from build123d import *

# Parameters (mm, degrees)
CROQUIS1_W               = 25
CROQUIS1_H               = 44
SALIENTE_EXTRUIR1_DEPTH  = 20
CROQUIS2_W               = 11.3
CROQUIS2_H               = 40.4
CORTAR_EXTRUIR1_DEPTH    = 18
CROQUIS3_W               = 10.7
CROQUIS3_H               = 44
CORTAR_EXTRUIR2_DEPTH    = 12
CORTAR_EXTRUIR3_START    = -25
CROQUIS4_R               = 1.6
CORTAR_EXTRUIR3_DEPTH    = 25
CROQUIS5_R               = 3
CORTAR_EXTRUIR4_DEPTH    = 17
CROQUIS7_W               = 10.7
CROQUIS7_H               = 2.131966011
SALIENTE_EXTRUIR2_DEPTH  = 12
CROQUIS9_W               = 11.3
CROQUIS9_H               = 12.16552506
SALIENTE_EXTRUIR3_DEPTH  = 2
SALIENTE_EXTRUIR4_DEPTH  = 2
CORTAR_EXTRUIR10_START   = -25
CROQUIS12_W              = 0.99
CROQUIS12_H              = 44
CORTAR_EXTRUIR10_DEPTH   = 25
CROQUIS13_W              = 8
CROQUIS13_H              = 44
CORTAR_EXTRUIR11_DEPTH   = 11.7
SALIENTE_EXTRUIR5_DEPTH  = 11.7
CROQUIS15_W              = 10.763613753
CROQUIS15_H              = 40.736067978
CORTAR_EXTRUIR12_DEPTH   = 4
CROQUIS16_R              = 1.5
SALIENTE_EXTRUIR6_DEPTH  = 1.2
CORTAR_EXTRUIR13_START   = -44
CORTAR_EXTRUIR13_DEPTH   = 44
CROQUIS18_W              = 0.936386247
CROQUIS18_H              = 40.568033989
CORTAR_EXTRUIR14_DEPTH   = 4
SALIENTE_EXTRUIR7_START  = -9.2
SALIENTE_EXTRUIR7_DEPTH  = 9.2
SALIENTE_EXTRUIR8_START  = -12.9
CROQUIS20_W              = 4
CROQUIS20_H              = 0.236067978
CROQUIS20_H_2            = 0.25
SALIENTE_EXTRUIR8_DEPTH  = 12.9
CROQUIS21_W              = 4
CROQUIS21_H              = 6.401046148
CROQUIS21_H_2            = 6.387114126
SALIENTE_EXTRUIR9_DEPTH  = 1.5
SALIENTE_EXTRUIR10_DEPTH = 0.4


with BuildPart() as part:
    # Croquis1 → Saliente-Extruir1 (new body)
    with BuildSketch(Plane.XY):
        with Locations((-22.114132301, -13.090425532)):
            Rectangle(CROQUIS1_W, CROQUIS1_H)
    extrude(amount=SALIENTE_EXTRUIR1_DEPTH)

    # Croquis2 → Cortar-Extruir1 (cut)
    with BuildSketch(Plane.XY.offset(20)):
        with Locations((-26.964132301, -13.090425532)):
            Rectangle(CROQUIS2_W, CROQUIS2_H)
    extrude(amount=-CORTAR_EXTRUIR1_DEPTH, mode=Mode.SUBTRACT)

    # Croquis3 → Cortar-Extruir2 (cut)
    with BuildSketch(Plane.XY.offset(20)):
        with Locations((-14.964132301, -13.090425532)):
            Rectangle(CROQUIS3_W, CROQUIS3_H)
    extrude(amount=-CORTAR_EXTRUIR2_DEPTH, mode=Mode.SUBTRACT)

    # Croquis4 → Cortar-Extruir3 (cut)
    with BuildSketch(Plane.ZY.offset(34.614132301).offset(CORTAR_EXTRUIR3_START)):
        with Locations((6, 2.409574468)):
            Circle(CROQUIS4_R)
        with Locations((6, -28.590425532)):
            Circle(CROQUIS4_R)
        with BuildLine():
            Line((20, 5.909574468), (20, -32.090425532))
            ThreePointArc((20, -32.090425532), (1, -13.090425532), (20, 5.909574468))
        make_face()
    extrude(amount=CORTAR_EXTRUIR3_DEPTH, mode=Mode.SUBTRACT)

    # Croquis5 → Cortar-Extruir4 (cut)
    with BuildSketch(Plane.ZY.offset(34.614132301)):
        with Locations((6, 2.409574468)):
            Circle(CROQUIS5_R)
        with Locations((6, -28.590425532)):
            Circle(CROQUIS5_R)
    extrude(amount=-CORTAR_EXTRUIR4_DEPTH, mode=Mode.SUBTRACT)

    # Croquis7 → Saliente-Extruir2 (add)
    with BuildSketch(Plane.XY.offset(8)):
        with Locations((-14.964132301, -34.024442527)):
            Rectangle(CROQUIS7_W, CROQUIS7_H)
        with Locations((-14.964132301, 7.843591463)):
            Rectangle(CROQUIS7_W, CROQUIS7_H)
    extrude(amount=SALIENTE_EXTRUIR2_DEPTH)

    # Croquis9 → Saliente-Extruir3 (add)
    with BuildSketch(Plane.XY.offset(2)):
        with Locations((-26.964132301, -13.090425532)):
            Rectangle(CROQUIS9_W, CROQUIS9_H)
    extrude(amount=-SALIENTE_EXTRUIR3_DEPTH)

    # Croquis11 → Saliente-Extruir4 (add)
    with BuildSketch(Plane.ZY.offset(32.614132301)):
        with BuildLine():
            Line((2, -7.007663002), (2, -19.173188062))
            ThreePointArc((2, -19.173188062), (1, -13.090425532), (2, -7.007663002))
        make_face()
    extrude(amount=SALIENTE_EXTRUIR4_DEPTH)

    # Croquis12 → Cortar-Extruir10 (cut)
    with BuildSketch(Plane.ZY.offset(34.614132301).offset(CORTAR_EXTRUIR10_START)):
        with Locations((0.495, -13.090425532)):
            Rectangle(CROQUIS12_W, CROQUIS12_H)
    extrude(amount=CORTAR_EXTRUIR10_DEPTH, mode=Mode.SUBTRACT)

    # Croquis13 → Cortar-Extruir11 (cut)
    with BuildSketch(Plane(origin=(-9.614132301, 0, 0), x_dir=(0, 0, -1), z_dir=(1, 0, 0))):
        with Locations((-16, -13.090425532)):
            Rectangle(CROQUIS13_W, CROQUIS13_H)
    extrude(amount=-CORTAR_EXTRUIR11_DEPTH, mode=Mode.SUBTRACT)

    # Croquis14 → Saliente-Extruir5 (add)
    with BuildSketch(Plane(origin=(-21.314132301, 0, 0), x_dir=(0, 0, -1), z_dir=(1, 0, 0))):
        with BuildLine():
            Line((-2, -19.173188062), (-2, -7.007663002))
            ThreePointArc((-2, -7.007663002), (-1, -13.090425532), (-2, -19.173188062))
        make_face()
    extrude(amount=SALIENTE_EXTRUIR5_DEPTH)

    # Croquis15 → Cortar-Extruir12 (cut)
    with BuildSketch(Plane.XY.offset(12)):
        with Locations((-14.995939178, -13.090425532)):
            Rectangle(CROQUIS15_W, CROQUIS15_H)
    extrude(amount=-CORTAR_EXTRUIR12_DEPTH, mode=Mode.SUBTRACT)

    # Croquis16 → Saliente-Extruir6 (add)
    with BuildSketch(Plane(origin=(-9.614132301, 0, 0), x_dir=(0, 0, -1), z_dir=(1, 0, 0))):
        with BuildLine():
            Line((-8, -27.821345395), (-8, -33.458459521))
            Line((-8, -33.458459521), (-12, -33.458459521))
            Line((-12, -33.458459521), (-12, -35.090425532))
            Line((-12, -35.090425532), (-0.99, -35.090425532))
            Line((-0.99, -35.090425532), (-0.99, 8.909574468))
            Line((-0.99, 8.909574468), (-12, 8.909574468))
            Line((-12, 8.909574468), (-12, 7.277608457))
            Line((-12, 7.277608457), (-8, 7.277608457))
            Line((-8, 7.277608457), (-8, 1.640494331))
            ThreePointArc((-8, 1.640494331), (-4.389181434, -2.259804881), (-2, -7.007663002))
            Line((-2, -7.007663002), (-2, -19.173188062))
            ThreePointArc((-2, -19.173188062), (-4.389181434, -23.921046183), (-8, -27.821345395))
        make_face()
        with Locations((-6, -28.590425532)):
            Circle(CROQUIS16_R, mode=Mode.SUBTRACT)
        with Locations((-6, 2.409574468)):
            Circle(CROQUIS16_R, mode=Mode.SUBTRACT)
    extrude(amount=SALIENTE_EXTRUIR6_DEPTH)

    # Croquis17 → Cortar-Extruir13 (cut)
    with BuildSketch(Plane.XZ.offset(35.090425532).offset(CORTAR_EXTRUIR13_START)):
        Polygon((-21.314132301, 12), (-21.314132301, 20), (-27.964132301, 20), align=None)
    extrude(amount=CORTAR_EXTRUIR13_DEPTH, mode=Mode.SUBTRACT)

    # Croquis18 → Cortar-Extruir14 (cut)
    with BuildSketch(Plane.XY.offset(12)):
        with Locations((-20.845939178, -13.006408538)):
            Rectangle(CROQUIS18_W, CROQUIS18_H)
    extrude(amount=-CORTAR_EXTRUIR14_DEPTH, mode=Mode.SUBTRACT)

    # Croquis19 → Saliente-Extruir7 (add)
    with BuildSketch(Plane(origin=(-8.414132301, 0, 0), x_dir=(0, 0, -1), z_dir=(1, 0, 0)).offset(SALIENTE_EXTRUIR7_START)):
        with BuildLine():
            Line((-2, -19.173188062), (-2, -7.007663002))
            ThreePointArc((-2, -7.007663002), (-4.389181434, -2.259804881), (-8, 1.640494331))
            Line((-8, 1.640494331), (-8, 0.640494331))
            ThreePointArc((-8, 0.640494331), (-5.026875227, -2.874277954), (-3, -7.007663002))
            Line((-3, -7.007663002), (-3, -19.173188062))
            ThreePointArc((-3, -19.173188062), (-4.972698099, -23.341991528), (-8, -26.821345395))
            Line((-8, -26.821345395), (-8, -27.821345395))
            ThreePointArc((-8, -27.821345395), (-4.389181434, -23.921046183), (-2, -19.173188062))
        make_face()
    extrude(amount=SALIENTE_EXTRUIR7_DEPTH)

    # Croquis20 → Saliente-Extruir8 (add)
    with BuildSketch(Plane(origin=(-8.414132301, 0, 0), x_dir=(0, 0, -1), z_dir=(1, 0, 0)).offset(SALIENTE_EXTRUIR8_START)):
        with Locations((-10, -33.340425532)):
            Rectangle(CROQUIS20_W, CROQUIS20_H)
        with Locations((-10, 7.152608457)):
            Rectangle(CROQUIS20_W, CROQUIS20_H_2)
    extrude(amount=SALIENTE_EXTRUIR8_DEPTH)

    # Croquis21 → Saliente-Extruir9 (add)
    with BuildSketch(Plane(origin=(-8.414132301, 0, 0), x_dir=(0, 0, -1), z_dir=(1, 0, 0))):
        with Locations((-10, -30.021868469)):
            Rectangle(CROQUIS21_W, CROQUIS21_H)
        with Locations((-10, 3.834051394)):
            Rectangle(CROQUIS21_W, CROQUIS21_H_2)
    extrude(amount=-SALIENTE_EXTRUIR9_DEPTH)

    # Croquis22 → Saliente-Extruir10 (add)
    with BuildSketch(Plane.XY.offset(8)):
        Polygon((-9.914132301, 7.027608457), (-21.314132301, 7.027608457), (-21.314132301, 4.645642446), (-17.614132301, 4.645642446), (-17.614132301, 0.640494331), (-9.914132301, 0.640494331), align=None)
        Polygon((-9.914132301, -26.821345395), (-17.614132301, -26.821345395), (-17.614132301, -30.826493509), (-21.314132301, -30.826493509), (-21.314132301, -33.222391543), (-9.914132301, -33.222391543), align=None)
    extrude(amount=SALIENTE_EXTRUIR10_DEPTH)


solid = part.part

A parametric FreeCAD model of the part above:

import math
import FreeCAD as App
import Part
import Sketcher

V = App.Vector

doc = App.newDocument("Part")
params = doc.addObject("Spreadsheet::Sheet", "Params")
for row, (alias, value) in enumerate([
    ("sketch1_width", "25 mm"),
    ("sketch1_height", "44 mm"),
    ("pad1_length", "20 mm"),
    ("sketch2_width", "11.3 mm"),
    ("sketch2_height", "40.4 mm"),
    ("pocket1_length", "18 mm"),
    ("sketch3_height", "44 mm"),
    ("sketch3_width", "10.7 mm"),
    ("pocket2_length", "12 mm"),
    ("sketch4_radius", "19 mm"),
    ("sketch4_diameter", "3.2 mm"),
    ("pocket3_length", "25 mm"),
    ("sketch5_diameter", "6 mm"),
    ("pocket4_length", "17 mm"),
    ("sketch6_width", "10.7 mm"),
    ("pad2_length", "12 mm"),
    ("sketch7_width", "11.3 mm"),
    ("pad3_length", "2 mm"),
    ("sketch8_radius", "19 mm"),
    ("pad4_length", "2 mm"),
    ("sketch9_width", "44 mm"),
    ("sketch9_height", "0.99 mm"),
    ("pocket5_length", "25 mm"),
    ("sketch10_width", "44 mm"),
    ("sketch10_height", "8 mm"),
    ("pocket6_length", "11.7 mm"),
    ("sketch11_radius", "19 mm"),
    ("pad5_length", "11.7 mm"),
    ("pocket7_length", "4 mm"),
    ("sketch13_diameter", "3 mm"),
    ("sketch13_radius", "19 mm"),
    ("sketch13_width", "44 mm"),
    ("sketch13_height", "4 mm"),
    ("sketch13_height2", "11.01 mm"),
    ("pad6_length", "1.2 mm"),
    ("sketch14_height", "8 mm"),
    ("sketch14_width", "6.65 mm"),
    ("pocket8_length", "44 mm"),
    ("pocket9_length", "4 mm"),
    ("sketch16_radius", "19 mm"),
    ("sketch16_width", "1 mm"),
    ("pad7_length", "9.2 mm"),
    ("sketch17_height", "4 mm"),
    ("sketch17_width", "0.25 mm"),
    ("pad8_length", "12.9 mm"),
    ("sketch18_height", "4 mm"),
    ("pad9_length", "1.5 mm"),
    ("sketch19_width", "11.4 mm"),
    ("sketch19_width2", "3.7 mm"),
    ("pad10_length", "0.4 mm"),
], start=1):
    params.set(f"A{row}", alias)
    params.set(f"B{row}", "=" + value)
    params.setAlias(f"B{row}", alias)

body = doc.addObject("PartDesign::Body", "Body")

# Sketch on XY plane
sketch1 = body.newObject("Sketcher::SketchObject", "Sketch")
sketch1.AttachmentSupport = (doc.getObject("XY_Plane"), [""])
sketch1.MapMode = "FlatFace"
sketch1.addGeometry([
    Part.LineSegment(V(-35, 9, 0), V(-35, -35, 0)),
    Part.LineSegment(V(-35, -35, 0), V(-10, -35, 0)),
    Part.LineSegment(V(-10, -35, 0), V(-10, 9, 0)),
    Part.LineSegment(V(-10, 9, 0), V(-35, 9, 0)),
], False)
sketch1.addConstraint([
    Sketcher.Constraint("Coincident", 0, 2, 1, 1),
    Sketcher.Constraint("Coincident", 1, 2, 2, 1),
    Sketcher.Constraint("Coincident", 2, 2, 3, 1),
    Sketcher.Constraint("Coincident", 3, 2, 0, 1),
    Sketcher.Constraint("Vertical", 0),
    Sketcher.Constraint("Horizontal", 1),
    Sketcher.Constraint("Vertical", 2),
    Sketcher.Constraint("Horizontal", 3),
    Sketcher.Constraint("DistanceX", 1, 1, 1, 2, 25.0),
    Sketcher.Constraint("DistanceY", 0, 2, 0, 1, 44.0),
    Sketcher.Constraint("DistanceX", 0, 2, -1, 1, 34.614132),
    Sketcher.Constraint("DistanceY", 0, 2, -1, 1, 35.090426),
])
sketch1.setExpression("Constraints[8]", "Params.sketch1_width")
sketch1.setExpression("Constraints[9]", "Params.sketch1_height")
pad1 = body.newObject("PartDesign::Pad", "Pad")
pad1.Profile = sketch1
pad1.setExpression("Length", "Params.pad1_length")

# Sketch on XY plane
sketch2 = body.newObject("Sketcher::SketchObject", "Sketch001")
sketch2.AttachmentSupport = (doc.getObject("XY_Plane"), [""])
sketch2.MapMode = "FlatFace"
sketch2.AttachmentOffset = App.Placement(V(0, 0, 20), App.Rotation())
sketch2.addGeometry([
    Part.LineSegment(V(-33, 7, 0), V(-33, -33, 0)),
    Part.LineSegment(V(-33, -33, 0), V(-21, -33, 0)),
    Part.LineSegment(V(-21, -33, 0), V(-21, 7, 0)),
    Part.LineSegment(V(-21, 7, 0), V(-33, 7, 0)),
], False)
sketch2.addConstraint([
    Sketcher.Constraint("Coincident", 0, 2, 1, 1),
    Sketcher.Constraint("Coincident", 1, 2, 2, 1),
    Sketcher.Constraint("Coincident", 2, 2, 3, 1),
    Sketcher.Constraint("Coincident", 3, 2, 0, 1),
    Sketcher.Constraint("Vertical", 0),
    Sketcher.Constraint("Horizontal", 1),
    Sketcher.Constraint("Vertical", 2),
    Sketcher.Constraint("Horizontal", 3),
    Sketcher.Constraint("DistanceX", 1, 1, 1, 2, 11.3),
    Sketcher.Constraint("DistanceY", 0, 2, 0, 1, 40.4),
    Sketcher.Constraint("DistanceX", 0, 2, -1, 1, 32.614132),
    Sketcher.Constraint("DistanceY", 0, 2, -1, 1, 33.290426),
])
sketch2.setExpression("Constraints[8]", "Params.sketch2_width")
sketch2.setExpression("Constraints[9]", "Params.sketch2_height")
pocket1 = body.newObject("PartDesign::Pocket", "Pocket")
pocket1.Profile = sketch2
pocket1.setExpression("Length", "Params.pocket1_length")

# Sketch on XY plane
sketch3 = body.newObject("Sketcher::SketchObject", "Sketch002")
sketch3.AttachmentSupport = (doc.getObject("XY_Plane"), [""])
sketch3.MapMode = "FlatFace"
sketch3.AttachmentOffset = App.Placement(V(0, 0, 20), App.Rotation())
sketch3.addGeometry([
    Part.LineSegment(V(-20, 9, 0), V(-20, -35, 0)),
    Part.LineSegment(V(-20, -35, 0), V(-10, -35, 0)),
    Part.LineSegment(V(-10, -35, 0), V(-10, 9, 0)),
    Part.LineSegment(V(-10, 9, 0), V(-20, 9, 0)),
], False)
sketch3.addConstraint([
    Sketcher.Constraint("Coincident", 0, 2, 1, 1),
    Sketcher.Constraint("Coincident", 1, 2, 2, 1),
    Sketcher.Constraint("Coincident", 2, 2, 3, 1),
    Sketcher.Constraint("Coincident", 3, 2, 0, 1),
    Sketcher.Constraint("Vertical", 0),
    Sketcher.Constraint("Horizontal", 1),
    Sketcher.Constraint("Vertical", 2),
    Sketcher.Constraint("Horizontal", 3),
    Sketcher.Constraint("DistanceY", 0, 2, 0, 1, 44.0),
    Sketcher.Constraint("DistanceX", 1, 1, 1, 2, 10.7),
    Sketcher.Constraint("DistanceX", 0, 2, -1, 1, 20.314132),
    Sketcher.Constraint("DistanceY", 0, 2, -1, 1, 35.090426),
])
sketch3.setExpression("Constraints[8]", "Params.sketch3_height")
sketch3.setExpression("Constraints[9]", "Params.sketch3_width")
pocket2 = body.newObject("PartDesign::Pocket", "Pocket001")
pocket2.Profile = sketch3
pocket2.setExpression("Length", "Params.pocket2_length")

# Sketch on YZ plane
sketch4 = body.newObject("Sketcher::SketchObject", "Sketch003")
sketch4.AttachmentSupport = (doc.getObject("YZ_Plane"), [""])
sketch4.MapMode = "FlatFace"
sketch4.AttachmentOffset = App.Placement(V(0, 0, -9.614132), App.Rotation())
sketch4.addGeometry([
    Part.Circle(V(2.4, 6, 0), V(0, 0, 1), 1.6),
    Part.Circle(V(-28.6, 6, 0), V(0, 0, 1), 1.6),
    Part.LineSegment(V(-32.1, 20, 0), V(5.9, 20, 0)),
    Part.ArcOfCircle(Part.Circle(V(-13.1, 20, 0), V(0, 0, 1), 19), math.radians(180), math.radians(360)),
], False)
sketch4.addConstraint([
    Sketcher.Constraint("Coincident", 2, 1, 3, 1),
    Sketcher.Constraint("Coincident", 3, 2, 2, 2),
    Sketcher.Constraint("Horizontal", 2),
    Sketcher.Constraint("Equal", 0, 1),
    Sketcher.Constraint("Horizontal", 0, 3, 1, 3),
    Sketcher.Constraint("Horizontal", 3, 3, 2, 1),
    Sketcher.Constraint("Radius", 3, 19.0),
    Sketcher.Constraint("Diameter", 0, 3.2),
    Sketcher.Constraint("DistanceY", -1, 1, 0, 3, 6.0),
    Sketcher.Constraint("DistanceY", -1, 1, 3, 3, 20.0),
    Sketcher.Constraint("DistanceX", 1, 3, 0, 3, 31.0),
    Sketcher.Constraint("DistanceX", 3, 3, 0, 3, 15.5),
    Sketcher.Constraint("DistanceX", -1, 1, 0, 3, 2.409574),
])
sketch4.setExpression("Constraints[6]", "Params.sketch4_radius")
sketch4.setExpression("Constraints[7]", "Params.sketch4_diameter")
pocket3 = body.newObject("PartDesign::Pocket", "Pocket002")
pocket3.Profile = sketch4
pocket3.setExpression("Length", "Params.pocket3_length")

# Sketch on YZ plane
sketch5 = body.newObject("Sketcher::SketchObject", "Sketch004")
sketch5.AttachmentSupport = (doc.getObject("YZ_Plane"), [""])
sketch5.MapMode = "FlatFace"
sketch5.AttachmentOffset = App.Placement(V(0, 0, -34.614132), App.Rotation())
sketch5.addGeometry([
    Part.Circle(V(2.4, 6, 0), V(0, 0, 1), 3),
    Part.Circle(V(-28.6, 6, 0), V(0, 0, 1), 3),
], False)
sketch5.addConstraint([
    Sketcher.Constraint("Equal", 0, 1),
    Sketcher.Constraint("Horizontal", 0, 3, 1, 3),
    Sketcher.Constraint("Diameter", 0, 6.0),
    Sketcher.Constraint("DistanceY", -1, 1, 0, 3, 6.0),
    Sketcher.Constraint("DistanceX", 1, 3, 0, 3, 31.0),
    Sketcher.Constraint("DistanceX", -1, 1, 0, 3, 2.409574),
])
sketch5.setExpression("Constraints[2]", "Params.sketch5_diameter")
pocket4 = body.newObject("PartDesign::Pocket", "Pocket003")
pocket4.Profile = sketch5
pocket4.setExpression("Length", "Params.pocket4_length")
pocket4.Reversed = True

# Sketch on XY plane
sketch6 = body.newObject("Sketcher::SketchObject", "Sketch005")
sketch6.AttachmentSupport = (doc.getObject("XY_Plane"), [""])
sketch6.MapMode = "FlatFace"
sketch6.AttachmentOffset = App.Placement(V(0, 0, 8), App.Rotation())
sketch6.addGeometry([
    Part.LineSegment(V(-20.3, -33, 0), V(-20.3, -35.1, 0)),  # 0
    Part.LineSegment(V(-20.3, -35.1, 0), V(-9.6, -35.1, 0)),  # 1
    Part.LineSegment(V(-9.6, -35.1, 0), V(-9.6, -33, 0)),  # 2
    Part.LineSegment(V(-9.6, -33, 0), V(-20.3, -33, 0)),  # 3
    Part.LineSegment(V(-20.3, 8.9, 0), V(-20.3, 6.8, 0)),  # 4
    Part.LineSegment(V(-20.3, 6.8, 0), V(-9.6, 6.8, 0)),  # 5
    Part.LineSegment(V(-9.6, 6.8, 0), V(-9.6, 8.9, 0)),  # 6
    Part.LineSegment(V(-9.6, 8.9, 0), V(-20.3, 8.9, 0)),  # 7
], False)
sketch6.addConstraint([
    Sketcher.Constraint("Coincident", 0, 2, 1, 1),
    Sketcher.Constraint("Coincident", 1, 2, 2, 1),
    Sketcher.Constraint("Coincident", 2, 2, 3, 1),
    Sketcher.Constraint("Coincident", 3, 2, 0, 1),
    Sketcher.Constraint("Coincident", 4, 2, 5, 1),
    Sketcher.Constraint("Coincident", 5, 2, 6, 1),
    Sketcher.Constraint("Coincident", 6, 2, 7, 1),
    Sketcher.Constraint("Coincident", 7, 2, 4, 1),
    Sketcher.Constraint("Vertical", 0),
    Sketcher.Constraint("Horizontal", 1),
    Sketcher.Constraint("Vertical", 2),
    Sketcher.Constraint("Horizontal", 3),
    Sketcher.Constraint("Vertical", 4),
    Sketcher.Constraint("Horizontal", 5),
    Sketcher.Constraint("Vertical", 6),
    Sketcher.Constraint("Horizontal", 7),
    Sketcher.Constraint("Vertical", 3, 2, 4, 2),
    Sketcher.Constraint("Vertical", 2, 2, 5, 2),
    Sketcher.Constraint("Equal", 2, 4),
    Sketcher.Constraint("DistanceX", 1, 1, 1, 2, 10.7),
    Sketcher.Constraint("DistanceY", 1, 2, 6, 2, 44.0),
    Sketcher.Constraint("DistanceY", 0, 2, 0, 1, 2.131966),
    Sketcher.Constraint("DistanceY", 2, 2, -1, 1, 32.95846),
    Sketcher.Constraint("DistanceX", 0, 2, -1, 1, 20.314132),
])
sketch6.setExpression("Constraints[19]", "Params.sketch6_width")
pad2 = body.newObject("PartDesign::Pad", "Pad001")
pad2.Profile = sketch6
pad2.setExpression("Length", "Params.pad2_length")

# Sketch on XY plane
sketch7 = body.newObject("Sketcher::SketchObject", "Sketch006")
sketch7.AttachmentSupport = (doc.getObject("XY_Plane"), [""])
sketch7.MapMode = "FlatFace"
sketch7.AttachmentOffset = App.Placement(V(0, 0, 2), App.Rotation())
sketch7.addGeometry([
    Part.LineSegment(V(-33, -7, 0), V(-33, -19, 0)),
    Part.LineSegment(V(-33, -19, 0), V(-21, -19, 0)),
    Part.LineSegment(V(-21, -19, 0), V(-21, -7, 0)),
    Part.LineSegment(V(-21, -7, 0), V(-33, -7, 0)),
], False)
sketch7.addConstraint([
    Sketcher.Constraint("Coincident", 0, 2, 1, 1),
    Sketcher.Constraint("Coincident", 1, 2, 2, 1),
    Sketcher.Constraint("Coincident", 2, 2, 3, 1),
    Sketcher.Constraint("Coincident", 3, 2, 0, 1),
    Sketcher.Constraint("Vertical", 0),
    Sketcher.Constraint("Horizontal", 1),
    Sketcher.Constraint("Vertical", 2),
    Sketcher.Constraint("Horizontal", 3),
    Sketcher.Constraint("DistanceX", 1, 1, 1, 2, 11.3),
    Sketcher.Constraint("DistanceY", 0, 2, 0, 1, 12.165525),
    Sketcher.Constraint("DistanceY", 0, 2, -1, 1, 19.173188),
    Sketcher.Constraint("DistanceX", 0, 2, -1, 1, 32.614132),
])
sketch7.setExpression("Constraints[8]", "Params.sketch7_width")
pad3 = body.newObject("PartDesign::Pad", "Pad002")
pad3.Profile = sketch7
pad3.setExpression("Length", "Params.pad3_length")
pad3.Reversed = True

# Sketch on YZ plane
sketch8 = body.newObject("Sketcher::SketchObject", "Sketch007")
sketch8.AttachmentSupport = (doc.getObject("YZ_Plane"), [""])
sketch8.MapMode = "FlatFace"
sketch8.AttachmentOffset = App.Placement(V(0, 0, -32.614132), App.Rotation())
sketch8.addGeometry([
    Part.LineSegment(V(-19, 2, 0), V(-7, 2, 0)),
    Part.ArcOfCircle(Part.Circle(V(-13, 20, 0), V(0, 0, 1), 19), math.radians(-109), math.radians(-71)),
], False)
sketch8.addConstraint([
    Sketcher.Constraint("Coincident", 0, 1, 1, 1),
    Sketcher.Constraint("Coincident", 1, 2, 0, 2),
    Sketcher.Constraint("Horizontal", 0),
    Sketcher.Constraint("Radius", 1, 19.0),
    Sketcher.Constraint("DistanceY", -1, 1, 1, 3, 20.0),
    Sketcher.Constraint("DistanceY", -1, 1, 0, 1, 2.0),
    Sketcher.Constraint("DistanceX", 0, 1, -1, 1, 19.173188),
])
sketch8.setExpression("Constraints[3]", "Params.sketch8_radius")
pad4 = body.newObject("PartDesign::Pad", "Pad003")
pad4.Profile = sketch8
pad4.setExpression("Length", "Params.pad4_length")
pad4.Reversed = True

# Sketch on YZ plane
sketch9 = body.newObject("Sketcher::SketchObject", "Sketch008")
sketch9.AttachmentSupport = (doc.getObject("YZ_Plane"), [""])
sketch9.MapMode = "FlatFace"
sketch9.AttachmentOffset = App.Placement(V(0, 0, -9.614132), App.Rotation())
sketch9.addGeometry([
    Part.LineSegment(V(8.9, 0, 0), V(-35.1, 0, 0)),
    Part.LineSegment(V(-35.1, 0, 0), V(-35.1, 1, 0)),
    Part.LineSegment(V(-35.1, 1, 0), V(8.9, 1, 0)),
    Part.LineSegment(V(8.9, 1, 0), V(8.9, 0, 0)),
], False)
sketch9.addConstraint([
    Sketcher.Constraint("Coincident", 0, 2, 1, 1),
    Sketcher.Constraint("Coincident", 1, 2, 2, 1),
    Sketcher.Constraint("Coincident", 2, 2, 3, 1),
    Sketcher.Constraint("Coincident", 3, 2, 0, 1),
    Sketcher.Constraint("Horizontal", 0),
    Sketcher.Constraint("Vertical", 1),
    Sketcher.Constraint("Horizontal", 2),
    Sketcher.Constraint("Vertical", 3),
    Sketcher.Constraint("PointOnObject", 0, 2, -1),
    Sketcher.Constraint("DistanceX", 0, 2, 0, 1, 44.0),
    Sketcher.Constraint("DistanceY", 1, 1, 1, 2, 0.99),
    Sketcher.Constraint("DistanceX", 0, 2, -1, 1, 35.090426),
])
sketch9.setExpression("Constraints[9]", "Params.sketch9_width")
sketch9.setExpression("Constraints[10]", "Params.sketch9_height")
pocket5 = body.newObject("PartDesign::Pocket", "Pocket004")
pocket5.Profile = sketch9
pocket5.setExpression("Length", "Params.pocket5_length")

# Sketch on YZ plane
sketch10 = body.newObject("Sketcher::SketchObject", "Sketch009")
sketch10.AttachmentSupport = (doc.getObject("YZ_Plane"), [""])
sketch10.MapMode = "FlatFace"
sketch10.AttachmentOffset = App.Placement(V(0, 0, -9.614132), App.Rotation())
sketch10.addGeometry([
    Part.LineSegment(V(9, 20, 0), V(-35, 20, 0)),
    Part.LineSegment(V(-35, 20, 0), V(-35, 12, 0)),
    Part.LineSegment(V(-35, 12, 0), V(9, 12, 0)),
    Part.LineSegment(V(9, 12, 0), V(9, 20, 0)),
], False)
sketch10.addConstraint([
    Sketcher.Constraint("Coincident", 0, 2, 1, 1),
    Sketcher.Constraint("Coincident", 1, 2, 2, 1),
    Sketcher.Constraint("Coincident", 2, 2, 3, 1),
    Sketcher.Constraint("Coincident", 3, 2, 0, 1),
    Sketcher.Constraint("Horizontal", 0),
    Sketcher.Constraint("Vertical", 1),
    Sketcher.Constraint("Horizontal", 2),
    Sketcher.Constraint("Vertical", 3),
    Sketcher.Constraint("DistanceX", 0, 2, 0, 1, 44.0),
    Sketcher.Constraint("DistanceY", 1, 2, 1, 1, 8.0),
    Sketcher.Constraint("DistanceY", -1, 1, 0, 2, 20.0),
    Sketcher.Constraint("DistanceX", 0, 2, -1, 1, 35.090426),
])
sketch10.setExpression("Constraints[8]", "Params.sketch10_width")
sketch10.setExpression("Constraints[9]", "Params.sketch10_height")
pocket6 = body.newObject("PartDesign::Pocket", "Pocket005")
pocket6.Profile = sketch10
pocket6.setExpression("Length", "Params.pocket6_length")

# Sketch on YZ plane
sketch11 = body.newObject("Sketcher::SketchObject", "Sketch010")
sketch11.AttachmentSupport = (doc.getObject("YZ_Plane"), [""])
sketch11.MapMode = "FlatFace"
sketch11.AttachmentOffset = App.Placement(V(0, 0, -21.314132), App.Rotation())
sketch11.addGeometry([
    Part.LineSegment(V(-7, 2, 0), V(-19, 2, 0)),
    Part.ArcOfCircle(Part.Circle(V(-13, 20, 0), V(0, 0, 1), 19), math.radians(-109), math.radians(-71)),
], False)
sketch11.addConstraint([
    Sketcher.Constraint("Coincident", 0, 1, 1, 2),
    Sketcher.Constraint("Coincident", 1, 1, 0, 2),
    Sketcher.Constraint("Horizontal", 0),
    Sketcher.Constraint("Radius", 1, 19.0),
    Sketcher.Constraint("DistanceY", -1, 1, 1, 3, 20.0),
    Sketcher.Constraint("DistanceY", -1, 1, 0, 1, 2.0),
    Sketcher.Constraint("DistanceX", 1, 1, -1, 1, 19.173188),
])
sketch11.setExpression("Constraints[3]", "Params.sketch11_radius")
pad5 = body.newObject("PartDesign::Pad", "Pad004")
pad5.Profile = sketch11
pad5.setExpression("Length", "Params.pad5_length")

# Sketch on XY plane
sketch12 = body.newObject("Sketcher::SketchObject", "Sketch011")
sketch12.AttachmentSupport = (doc.getObject("XY_Plane"), [""])
sketch12.MapMode = "FlatFace"
sketch12.AttachmentOffset = App.Placement(V(0, 0, 12), App.Rotation())
sketch12.addGeometry([
    Part.LineSegment(V(-20, 7, 0), V(-20, -33, 0)),
    Part.LineSegment(V(-20, -33, 0), V(-10, -33, 0)),
    Part.LineSegment(V(-10, -33, 0), V(-10, 7, 0)),
    Part.LineSegment(V(-10, 7, 0), V(-20, 7, 0)),
], False)
sketch12.addConstraint([
    Sketcher.Constraint("Coincident", 0, 2, 1, 1),
    Sketcher.Constraint("Coincident", 1, 2, 2, 1),
    Sketcher.Constraint("Coincident", 2, 2, 3, 1),
    Sketcher.Constraint("Coincident", 3, 2, 0, 1),
    Sketcher.Constraint("Vertical", 0),
    Sketcher.Constraint("Horizontal", 1),
    Sketcher.Constraint("Vertical", 2),
    Sketcher.Constraint("Horizontal", 3),
    Sketcher.Constraint("DistanceX", 1, 1, 1, 2, 10.763614),
    Sketcher.Constraint("DistanceY", 0, 2, 0, 1, 40.736068),
    Sketcher.Constraint("DistanceY", 0, 2, -1, 1, 33.45846),
    Sketcher.Constraint("DistanceX", 0, 2, -1, 1, 20.377746),
])
pocket7 = body.newObject("PartDesign::Pocket", "Pocket006")
pocket7.Profile = sketch12
pocket7.setExpression("Length", "Params.pocket7_length")

# Sketch on YZ plane
sketch13 = body.newObject("Sketcher::SketchObject", "Sketch012")
sketch13.AttachmentSupport = (doc.getObject("YZ_Plane"), [""])
sketch13.MapMode = "FlatFace"
sketch13.AttachmentOffset = App.Placement(V(0, 0, -9.614132), App.Rotation())
sketch13.addGeometry([
    Part.LineSegment(V(-27.8, 8, 0), V(-33.5, 8, 0)),  # 0
    Part.LineSegment(V(-33.5, 8, 0), V(-33.5, 12, 0)),  # 1
    Part.LineSegment(V(-33.5, 12, 0), V(-35.1, 12, 0)),  # 2
    Part.LineSegment(V(-35.1, 12, 0), V(-35.1, 1, 0)),  # 3
    Part.LineSegment(V(-35.1, 1, 0), V(8.9, 1, 0)),  # 4
    Part.LineSegment(V(8.9, 1, 0), V(8.9, 12, 0)),  # 5
    Part.LineSegment(V(8.9, 12, 0), V(7.3, 12, 0)),  # 6
    Part.LineSegment(V(7.3, 12, 0), V(7.3, 8, 0)),  # 7
    Part.LineSegment(V(7.3, 8, 0), V(1.6, 8, 0)),  # 8
    Part.ArcOfCircle(Part.Circle(V(-13.1, 20, 0), V(0, 0, 1), 19), math.radians(-71), math.radians(-39)),  # 9
    Part.LineSegment(V(-7, 2, 0), V(-19.2, 2, 0)),  # 10
    Part.ArcOfCircle(Part.Circle(V(-13.1, 20, 0), V(0, 0, 1), 19), math.radians(-141), math.radians(-109)),  # 11
    Part.Circle(V(-28.6, 6, 0), V(0, 0, 1), 1.5),  # 12
    Part.Circle(V(2.4, 6, 0), V(0, 0, 1), 1.5),  # 13
], False)
sketch13.addConstraint([
    Sketcher.Constraint("Coincident", 0, 2, 1, 1),
    Sketcher.Constraint("Coincident", 1, 2, 2, 1),
    Sketcher.Constraint("Coincident", 2, 2, 3, 1),
    Sketcher.Constraint("Coincident", 3, 2, 4, 1),
    Sketcher.Constraint("Coincident", 4, 2, 5, 1),
    Sketcher.Constraint("Coincident", 5, 2, 6, 1),
    Sketcher.Constraint("Coincident", 6, 2, 7, 1),
    Sketcher.Constraint("Coincident", 7, 2, 8, 1),
    Sketcher.Constraint("Coincident", 8, 2, 9, 2),
    Sketcher.Constraint("Coincident", 9, 1, 10, 1),
    Sketcher.Constraint("Coincident", 10, 2, 11, 2),
    Sketcher.Constraint("Coincident", 11, 1, 0, 1),
    Sketcher.Constraint("Horizontal", 0),
    Sketcher.Constraint("Vertical", 1),
    Sketcher.Constraint("Horizontal", 2),
    Sketcher.Constraint("Vertical", 3),
    Sketcher.Constraint("Horizontal", 4),
    Sketcher.Constraint("Vertical", 5),
    Sketcher.Constraint("Horizontal", 6),
    Sketcher.Constraint("Vertical", 7),
    Sketcher.Constraint("Horizontal", 8),
    Sketcher.Constraint("Horizontal", 10),
    Sketcher.Constraint("Coincident", 11, 3, 9, 3),
    Sketcher.Constraint("Equal", 9, 11),
    Sketcher.Constraint("Equal", 12, 13),
    Sketcher.Constraint("Horizontal", 12, 3, 13, 3),
    Sketcher.Constraint("Horizontal", 2, 2, 5, 2),
    Sketcher.Constraint("Horizontal", 0, 2, 7, 2),
    Sketcher.Constraint("Equal", 2, 6),
    Sketcher.Constraint("Equal", 0, 8),
    Sketcher.Constraint("Diameter", 12, 3.0),
    Sketcher.Constraint("Radius", 9, 19.0),
    Sketcher.Constraint("DistanceX", 4, 1, 4, 2, 44.0),
    Sketcher.Constraint("DistanceY", 1, 1, 1, 2, 4.0),
    Sketcher.Constraint("DistanceY", -1, 1, 9, 3, 20.0),
    Sketcher.Constraint("DistanceY", -1, 1, 12, 3, 6.0),
    Sketcher.Constraint("DistanceY", -1, 1, 0, 2, 8.0),
    Sketcher.Constraint("DistanceY", -1, 1, 9, 1, 2.0),
    Sketcher.Constraint("DistanceX", 12, 3, 13, 3, 31.0),
    Sketcher.Constraint("DistanceY", 3, 2, 3, 1, 11.01),
    Sketcher.Constraint("DistanceX", 12, 3, 9, 3, 15.5),
    Sketcher.Constraint("DistanceX", 0, 2, 0, 1, 5.637114),
    Sketcher.Constraint("DistanceX", 0, 2, -1, 1, 33.45846),
])
sketch13.setExpression("Constraints[30]", "Params.sketch13_diameter")
sketch13.setExpression("Constraints[31]", "Params.sketch13_radius")
sketch13.setExpression("Constraints[32]", "Params.sketch13_width")
sketch13.setExpression("Constraints[33]", "Params.sketch13_height")
sketch13.setExpression("Constraints[39]", "Params.sketch13_height2")
pad6 = body.newObject("PartDesign::Pad", "Pad005")
pad6.Profile = sketch13
pad6.setExpression("Length", "Params.pad6_length")

# Sketch on XZ plane
sketch14 = body.newObject("Sketcher::SketchObject", "Sketch013")
sketch14.AttachmentSupport = (doc.getObject("XZ_Plane"), [""])
sketch14.MapMode = "FlatFace"
sketch14.AttachmentOffset = App.Placement(V(0, 0, -8.909574), App.Rotation())
sketch14.addGeometry([
    Part.LineSegment(V(-21, 12, 0), V(-21, 20, 0)),
    Part.LineSegment(V(-21, 20, 0), V(-28, 20, 0)),
    Part.LineSegment(V(-28, 20, 0), V(-21, 12, 0)),
], False)
sketch14.addConstraint([
    Sketcher.Constraint("Coincident", 0, 2, 1, 1),
    Sketcher.Constraint("Coincident", 1, 2, 2, 1),
    Sketcher.Constraint("Coincident", 2, 2, 0, 1),
    Sketcher.Constraint("Vertical", 0),
    Sketcher.Constraint("Horizontal", 1),
    Sketcher.Constraint("DistanceY", 0, 1, 0, 2, 8.0),
    Sketcher.Constraint("DistanceY", -1, 1, 0, 2, 20.0),
    Sketcher.Constraint("DistanceX", 1, 2, 1, 1, 6.65),
    Sketcher.Constraint("DistanceX", 0, 2, -1, 1, 21.314132),
])
sketch14.setExpression("Constraints[5]", "Params.sketch14_height")
sketch14.setExpression("Constraints[7]", "Params.sketch14_width")
pocket8 = body.newObject("PartDesign::Pocket", "Pocket007")
pocket8.Profile = sketch14
pocket8.setExpression("Length", "Params.pocket8_length")
pocket8.Reversed = True

# Sketch on XY plane
sketch15 = body.newObject("Sketcher::SketchObject", "Sketch014")
sketch15.AttachmentSupport = (doc.getObject("XY_Plane"), [""])
sketch15.MapMode = "FlatFace"
sketch15.AttachmentOffset = App.Placement(V(0, 0, 12), App.Rotation())
sketch15.addGeometry([
    Part.LineSegment(V(-21.3, 7.3, 0), V(-21.3, -33.3, 0)),
    Part.LineSegment(V(-21.3, -33.3, 0), V(-20.4, -33.3, 0)),
    Part.LineSegment(V(-20.4, -33.3, 0), V(-20.4, 7.3, 0)),
    Part.LineSegment(V(-20.4, 7.3, 0), V(-21.3, 7.3, 0)),
], False)
sketch15.addConstraint([
    Sketcher.Constraint("Coincident", 0, 2, 1, 1),
    Sketcher.Constraint("Coincident", 1, 2, 2, 1),
    Sketcher.Constraint("Coincident", 2, 2, 3, 1),
    Sketcher.Constraint("Coincident", 3, 2, 0, 1),
    Sketcher.Constraint("Vertical", 0),
    Sketcher.Constraint("Horizontal", 1),
    Sketcher.Constraint("Vertical", 2),
    Sketcher.Constraint("Horizontal", 3),
    Sketcher.Constraint("DistanceX", 1, 1, 1, 2, 0.936386),
    Sketcher.Constraint("DistanceY", 0, 2, 0, 1, 40.568034),
    Sketcher.Constraint("DistanceY", -1, 1, 2, 2, 7.277608),
    Sketcher.Constraint("DistanceX", 0, 2, -1, 1, 21.314132),
])
pocket9 = body.newObject("PartDesign::Pocket", "Pocket008")
pocket9.Profile = sketch15
pocket9.setExpression("Length", "Params.pocket9_length")

# Sketch on YZ plane
sketch16 = body.newObject("Sketcher::SketchObject", "Sketch015")
sketch16.AttachmentSupport = (doc.getObject("YZ_Plane"), [""])
sketch16.MapMode = "FlatFace"
sketch16.AttachmentOffset = App.Placement(V(0, 0, -17.614132), App.Rotation())
sketch16.addGeometry([
    Part.LineSegment(V(-19.2, 2, 0), V(-7, 2, 0)),  # 0
    Part.ArcOfCircle(Part.Circle(V(-13.1, 20, 0), V(0, 0, 1), 19), math.radians(-71), math.radians(-39)),  # 1
    Part.LineSegment(V(1.6, 8, 0), V(0.6, 8, 0)),  # 2
    Part.ArcOfCircle(Part.Circle(V(-13.1, 20.7, 0), V(0, 0, 1), 18.7), math.radians(-71), math.radians(-43)),  # 3
    Part.LineSegment(V(-7, 3, 0), V(-19.2, 3, 0)),  # 4
    Part.ArcOfCircle(Part.Circle(V(-14.1, 19.1, 0), V(0, 0, 1), 16.9), math.radians(-139), math.radians(-107)),  # 5
    Part.LineSegment(V(-26.8, 8, 0), V(-27.8, 8, 0)),  # 6
    Part.ArcOfCircle(Part.Circle(V(-13.1, 20, 0), V(0, 0, 1), 19), math.radians(-141), math.radians(-109)),  # 7
], False)
sketch16.addConstraint([
    Sketcher.Constraint("Coincident", 0, 2, 1, 1),
    Sketcher.Constraint("Coincident", 1, 2, 2, 1),
    Sketcher.Constraint("Coincident", 2, 2, 3, 2),
    Sketcher.Constraint("Coincident", 3, 1, 4, 1),
    Sketcher.Constraint("Coincident", 4, 2, 5, 2),
    Sketcher.Constraint("Coincident", 5, 1, 6, 1),
    Sketcher.Constraint("Coincident", 6, 2, 7, 1),
    Sketcher.Constraint("Coincident", 7, 2, 0, 1),
    Sketcher.Constraint("Horizontal", 0),
    Sketcher.Constraint("Horizontal", 2),
    Sketcher.Constraint("Horizontal", 4),
    Sketcher.Constraint("Horizontal", 6),
    Sketcher.Constraint("Coincident", 7, 3, 1, 3),
    Sketcher.Constraint("Equal", 1, 7),
    Sketcher.Constraint("Horizontal", 2, 2, 5, 1),
    Sketcher.Constraint("Vertical", 0, 2, 3, 1),
    Sketcher.Constraint("Vertical", 4, 2, 7, 2),
    Sketcher.Constraint("Equal", 2, 6),
    Sketcher.Constraint("Radius", 1, 19.0),
    Sketcher.Constraint("DistanceX", 2, 2, 2, 1, 1.0),
    Sketcher.Constraint("DistanceY", -1, 1, 1, 3, 20.0),
    Sketcher.Constraint("DistanceY", -1, 1, 0, 2, 2.0),
    Sketcher.Constraint("DistanceY", -1, 1, 1, 2, 8.0),
    Sketcher.Constraint("DistanceY", -1, 1, 3, 1, 3.0),
    Sketcher.Constraint("Radius", 5, 16.88169),
    Sketcher.Constraint("Radius", 3, 18.746365),
    Sketcher.Constraint("DistanceX", 4, 2, -1, 1, 19.173188),
])
sketch16.setExpression("Constraints[18]", "Params.sketch16_radius")
sketch16.setExpression("Constraints[19]", "Params.sketch16_width")
pad7 = body.newObject("PartDesign::Pad", "Pad006")
pad7.Profile = sketch16
pad7.setExpression("Length", "Params.pad7_length")

# Sketch on YZ plane
sketch17 = body.newObject("Sketcher::SketchObject", "Sketch016")
sketch17.AttachmentSupport = (doc.getObject("YZ_Plane"), [""])
sketch17.MapMode = "FlatFace"
sketch17.AttachmentOffset = App.Placement(V(0, 0, -21.314132), App.Rotation())
sketch17.addGeometry([
    Part.LineSegment(V(-33.22, 12, 0), V(-33.46, 12, 0)),  # 0
    Part.LineSegment(V(-33.46, 12, 0), V(-33.46, 8, 0)),  # 1
    Part.LineSegment(V(-33.46, 8, 0), V(-33.22, 8, 0)),  # 2
    Part.LineSegment(V(-33.22, 8, 0), V(-33.22, 12, 0)),  # 3
    Part.LineSegment(V(7.28, 12, 0), V(7.03, 12, 0)),  # 4
    Part.LineSegment(V(7.03, 12, 0), V(7.03, 8, 0)),  # 5
    Part.LineSegment(V(7.03, 8, 0), V(7.28, 8, 0)),  # 6
    Part.LineSegment(V(7.28, 8, 0), V(7.28, 12, 0)),  # 7
], False)
sketch17.addConstraint([
    Sketcher.Constraint("Coincident", 0, 2, 1, 1),
    Sketcher.Constraint("Coincident", 1, 2, 2, 1),
    Sketcher.Constraint("Coincident", 2, 2, 3, 1),
    Sketcher.Constraint("Coincident", 3, 2, 0, 1),
    Sketcher.Constraint("Coincident", 4, 2, 5, 1),
    Sketcher.Constraint("Coincident", 5, 2, 6, 1),
    Sketcher.Constraint("Coincident", 6, 2, 7, 1),
    Sketcher.Constraint("Coincident", 7, 2, 4, 1),
    Sketcher.Constraint("Horizontal", 0),
    Sketcher.Constraint("Vertical", 1),
    Sketcher.Constraint("Horizontal", 2),
    Sketcher.Constraint("Vertical", 3),
    Sketcher.Constraint("Horizontal", 4),
    Sketcher.Constraint("Vertical", 5),
    Sketcher.Constraint("Horizontal", 6),
    Sketcher.Constraint("Vertical", 7),
    Sketcher.Constraint("Horizontal", 3, 2, 4, 2),
    Sketcher.Constraint("Horizontal", 2, 2, 5, 2),
    Sketcher.Constraint("DistanceY", 1, 2, 1, 1, 4.0),
    Sketcher.Constraint("DistanceY", -1, 1, 0, 2, 12.0),
    Sketcher.Constraint("DistanceX", 4, 2, 4, 1, 0.25),
    Sketcher.Constraint("DistanceX", 2, 2, 6, 2, 40.5),
    Sketcher.Constraint("DistanceX", 0, 2, 0, 1, 0.236068),
    Sketcher.Constraint("DistanceX", 0, 2, -1, 1, 33.45846),
])
sketch17.setExpression("Constraints[18]", "Params.sketch17_height")
sketch17.setExpression("Constraints[20]", "Params.sketch17_width")
pad8 = body.newObject("PartDesign::Pad", "Pad007")
pad8.Profile = sketch17
pad8.setExpression("Length", "Params.pad8_length")

# Sketch on YZ plane
sketch18 = body.newObject("Sketcher::SketchObject", "Sketch017")
sketch18.AttachmentSupport = (doc.getObject("YZ_Plane"), [""])
sketch18.MapMode = "FlatFace"
sketch18.AttachmentOffset = App.Placement(V(0, 0, -8.414132), App.Rotation())
sketch18.addGeometry([
    Part.LineSegment(V(-26.8, 12, 0), V(-33.2, 12, 0)),  # 0
    Part.LineSegment(V(-33.2, 12, 0), V(-33.2, 8, 0)),  # 1
    Part.LineSegment(V(-33.2, 8, 0), V(-26.8, 8, 0)),  # 2
    Part.LineSegment(V(-26.8, 8, 0), V(-26.8, 12, 0)),  # 3
    Part.LineSegment(V(7, 12, 0), V(0.6, 12, 0)),  # 4
    Part.LineSegment(V(0.6, 12, 0), V(0.6, 8, 0)),  # 5
    Part.LineSegment(V(0.6, 8, 0), V(7, 8, 0)),  # 6
    Part.LineSegment(V(7, 8, 0), V(7, 12, 0)),  # 7
], False)
sketch18.addConstraint([
    Sketcher.Constraint("Coincident", 0, 2, 1, 1),
    Sketcher.Constraint("Coincident", 1, 2, 2, 1),
    Sketcher.Constraint("Coincident", 2, 2, 3, 1),
    Sketcher.Constraint("Coincident", 3, 2, 0, 1),
    Sketcher.Constraint("Coincident", 4, 2, 5, 1),
    Sketcher.Constraint("Coincident", 5, 2, 6, 1),
    Sketcher.Constraint("Coincident", 6, 2, 7, 1),
    Sketcher.Constraint("Coincident", 7, 2, 4, 1),
    Sketcher.Constraint("Horizontal", 0),
    Sketcher.Constraint("Vertical", 1),
    Sketcher.Constraint("Horizontal", 2),
    Sketcher.Constraint("Vertical", 3),
    Sketcher.Constraint("Horizontal", 4),
    Sketcher.Constraint("Vertical", 5),
    Sketcher.Constraint("Horizontal", 6),
    Sketcher.Constraint("Vertical", 7),
    Sketcher.Constraint("Horizontal", 3, 2, 4, 2),
    Sketcher.Constraint("Horizontal", 2, 2, 5, 2),
    Sketcher.Constraint("DistanceY", 1, 2, 1, 1, 4.0),
    Sketcher.Constraint("DistanceY", -1, 1, 0, 2, 12.0),
    Sketcher.Constraint("DistanceX", 1, 2, 6, 2, 40.25),
    Sketcher.Constraint("DistanceX", 0, 2, 0, 1, 6.401046),
    Sketcher.Constraint("DistanceX", 4, 2, 4, 1, 6.387114),
    Sketcher.Constraint("DistanceX", 0, 2, -1, 1, 33.222392),
])
sketch18.setExpression("Constraints[18]", "Params.sketch18_height")
pad9 = body.newObject("PartDesign::Pad", "Pad008")
pad9.Profile = sketch18
pad9.setExpression("Length", "Params.pad9_length")
pad9.Reversed = True

# Sketch on XY plane
sketch19 = body.newObject("Sketcher::SketchObject", "Sketch018")
sketch19.AttachmentSupport = (doc.getObject("XY_Plane"), [""])
sketch19.MapMode = "FlatFace"
sketch19.AttachmentOffset = App.Placement(V(0, 0, 8), App.Rotation())
sketch19.addGeometry([
    Part.LineSegment(V(-9.9, 7, 0), V(-21.3, 7, 0)),  # 0
    Part.LineSegment(V(-21.3, 7, 0), V(-21.3, 4.6, 0)),  # 1
    Part.LineSegment(V(-21.3, 4.6, 0), V(-17.6, 4.6, 0)),  # 2
    Part.LineSegment(V(-17.6, 4.6, 0), V(-17.6, 0.6, 0)),  # 3
    Part.LineSegment(V(-17.6, 0.6, 0), V(-9.9, 0.6, 0)),  # 4
    Part.LineSegment(V(-9.9, 0.6, 0), V(-9.9, 7, 0)),  # 5
    Part.LineSegment(V(-9.9, -26.8, 0), V(-17.6, -26.8, 0)),  # 6
    Part.LineSegment(V(-17.6, -26.8, 0), V(-17.6, -30.8, 0)),  # 7
    Part.LineSegment(V(-17.6, -30.8, 0), V(-21.3, -30.8, 0)),  # 8
    Part.LineSegment(V(-21.3, -30.8, 0), V(-21.3, -33.2, 0)),  # 9
    Part.LineSegment(V(-21.3, -33.2, 0), V(-9.9, -33.2, 0)),  # 10
    Part.LineSegment(V(-9.9, -33.2, 0), V(-9.9, -26.8, 0)),  # 11
], False)
sketch19.addConstraint([
    Sketcher.Constraint("Coincident", 0, 2, 1, 1),
    Sketcher.Constraint("Coincident", 1, 2, 2, 1),
    Sketcher.Constraint("Coincident", 2, 2, 3, 1),
    Sketcher.Constraint("Coincident", 3, 2, 4, 1),
    Sketcher.Constraint("Coincident", 4, 2, 5, 1),
    Sketcher.Constraint("Coincident", 5, 2, 0, 1),
    Sketcher.Constraint("Coincident", 6, 2, 7, 1),
    Sketcher.Constraint("Coincident", 7, 2, 8, 1),
    Sketcher.Constraint("Coincident", 8, 2, 9, 1),
    Sketcher.Constraint("Coincident", 9, 2, 10, 1),
    Sketcher.Constraint("Coincident", 10, 2, 11, 1),
    Sketcher.Constraint("Coincident", 11, 2, 6, 1),
    Sketcher.Constraint("Horizontal", 0),
    Sketcher.Constraint("Vertical", 1),
    Sketcher.Constraint("Horizontal", 2),
    Sketcher.Constraint("Vertical", 3),
    Sketcher.Constraint("Horizontal", 4),
    Sketcher.Constraint("Vertical", 5),
    Sketcher.Constraint("Horizontal", 6),
    Sketcher.Constraint("Vertical", 7),
    Sketcher.Constraint("Horizontal", 8),
    Sketcher.Constraint("Vertical", 9),
    Sketcher.Constraint("Horizontal", 10),
    Sketcher.Constraint("Vertical", 11),
    Sketcher.Constraint("Vertical", 3, 2, 6, 2),
    Sketcher.Constraint("Vertical", 1, 2, 8, 2),
    Sketcher.Constraint("Vertical", 5, 2, 10, 2),
    Sketcher.Constraint("Equal", 3, 7),
    Sketcher.Constraint("DistanceX", 0, 2, 0, 1, 11.4),
    Sketcher.Constraint("DistanceX", 2, 1, 2, 2, 3.7),
    Sketcher.Constraint("DistanceY", 9, 2, 9, 1, 2.395898),
    Sketcher.Constraint("DistanceY", 3, 2, 3, 1, 4.005148),
    Sketcher.Constraint("DistanceY", 1, 2, 1, 1, 2.381966),
    Sketcher.Constraint("DistanceY", -1, 1, 0, 2, 7.027608),
    Sketcher.Constraint("DistanceY", 9, 2, -1, 1, 33.222392),
    Sketcher.Constraint("DistanceX", 0, 2, -1, 1, 21.314132),
])
sketch19.setExpression("Constraints[28]", "Params.sketch19_width")
sketch19.setExpression("Constraints[29]", "Params.sketch19_width2")
pad10 = body.newObject("PartDesign::Pad", "Pad009")
pad10.Profile = sketch19
pad10.setExpression("Length", "Params.pad10_length")

doc.recompute()
